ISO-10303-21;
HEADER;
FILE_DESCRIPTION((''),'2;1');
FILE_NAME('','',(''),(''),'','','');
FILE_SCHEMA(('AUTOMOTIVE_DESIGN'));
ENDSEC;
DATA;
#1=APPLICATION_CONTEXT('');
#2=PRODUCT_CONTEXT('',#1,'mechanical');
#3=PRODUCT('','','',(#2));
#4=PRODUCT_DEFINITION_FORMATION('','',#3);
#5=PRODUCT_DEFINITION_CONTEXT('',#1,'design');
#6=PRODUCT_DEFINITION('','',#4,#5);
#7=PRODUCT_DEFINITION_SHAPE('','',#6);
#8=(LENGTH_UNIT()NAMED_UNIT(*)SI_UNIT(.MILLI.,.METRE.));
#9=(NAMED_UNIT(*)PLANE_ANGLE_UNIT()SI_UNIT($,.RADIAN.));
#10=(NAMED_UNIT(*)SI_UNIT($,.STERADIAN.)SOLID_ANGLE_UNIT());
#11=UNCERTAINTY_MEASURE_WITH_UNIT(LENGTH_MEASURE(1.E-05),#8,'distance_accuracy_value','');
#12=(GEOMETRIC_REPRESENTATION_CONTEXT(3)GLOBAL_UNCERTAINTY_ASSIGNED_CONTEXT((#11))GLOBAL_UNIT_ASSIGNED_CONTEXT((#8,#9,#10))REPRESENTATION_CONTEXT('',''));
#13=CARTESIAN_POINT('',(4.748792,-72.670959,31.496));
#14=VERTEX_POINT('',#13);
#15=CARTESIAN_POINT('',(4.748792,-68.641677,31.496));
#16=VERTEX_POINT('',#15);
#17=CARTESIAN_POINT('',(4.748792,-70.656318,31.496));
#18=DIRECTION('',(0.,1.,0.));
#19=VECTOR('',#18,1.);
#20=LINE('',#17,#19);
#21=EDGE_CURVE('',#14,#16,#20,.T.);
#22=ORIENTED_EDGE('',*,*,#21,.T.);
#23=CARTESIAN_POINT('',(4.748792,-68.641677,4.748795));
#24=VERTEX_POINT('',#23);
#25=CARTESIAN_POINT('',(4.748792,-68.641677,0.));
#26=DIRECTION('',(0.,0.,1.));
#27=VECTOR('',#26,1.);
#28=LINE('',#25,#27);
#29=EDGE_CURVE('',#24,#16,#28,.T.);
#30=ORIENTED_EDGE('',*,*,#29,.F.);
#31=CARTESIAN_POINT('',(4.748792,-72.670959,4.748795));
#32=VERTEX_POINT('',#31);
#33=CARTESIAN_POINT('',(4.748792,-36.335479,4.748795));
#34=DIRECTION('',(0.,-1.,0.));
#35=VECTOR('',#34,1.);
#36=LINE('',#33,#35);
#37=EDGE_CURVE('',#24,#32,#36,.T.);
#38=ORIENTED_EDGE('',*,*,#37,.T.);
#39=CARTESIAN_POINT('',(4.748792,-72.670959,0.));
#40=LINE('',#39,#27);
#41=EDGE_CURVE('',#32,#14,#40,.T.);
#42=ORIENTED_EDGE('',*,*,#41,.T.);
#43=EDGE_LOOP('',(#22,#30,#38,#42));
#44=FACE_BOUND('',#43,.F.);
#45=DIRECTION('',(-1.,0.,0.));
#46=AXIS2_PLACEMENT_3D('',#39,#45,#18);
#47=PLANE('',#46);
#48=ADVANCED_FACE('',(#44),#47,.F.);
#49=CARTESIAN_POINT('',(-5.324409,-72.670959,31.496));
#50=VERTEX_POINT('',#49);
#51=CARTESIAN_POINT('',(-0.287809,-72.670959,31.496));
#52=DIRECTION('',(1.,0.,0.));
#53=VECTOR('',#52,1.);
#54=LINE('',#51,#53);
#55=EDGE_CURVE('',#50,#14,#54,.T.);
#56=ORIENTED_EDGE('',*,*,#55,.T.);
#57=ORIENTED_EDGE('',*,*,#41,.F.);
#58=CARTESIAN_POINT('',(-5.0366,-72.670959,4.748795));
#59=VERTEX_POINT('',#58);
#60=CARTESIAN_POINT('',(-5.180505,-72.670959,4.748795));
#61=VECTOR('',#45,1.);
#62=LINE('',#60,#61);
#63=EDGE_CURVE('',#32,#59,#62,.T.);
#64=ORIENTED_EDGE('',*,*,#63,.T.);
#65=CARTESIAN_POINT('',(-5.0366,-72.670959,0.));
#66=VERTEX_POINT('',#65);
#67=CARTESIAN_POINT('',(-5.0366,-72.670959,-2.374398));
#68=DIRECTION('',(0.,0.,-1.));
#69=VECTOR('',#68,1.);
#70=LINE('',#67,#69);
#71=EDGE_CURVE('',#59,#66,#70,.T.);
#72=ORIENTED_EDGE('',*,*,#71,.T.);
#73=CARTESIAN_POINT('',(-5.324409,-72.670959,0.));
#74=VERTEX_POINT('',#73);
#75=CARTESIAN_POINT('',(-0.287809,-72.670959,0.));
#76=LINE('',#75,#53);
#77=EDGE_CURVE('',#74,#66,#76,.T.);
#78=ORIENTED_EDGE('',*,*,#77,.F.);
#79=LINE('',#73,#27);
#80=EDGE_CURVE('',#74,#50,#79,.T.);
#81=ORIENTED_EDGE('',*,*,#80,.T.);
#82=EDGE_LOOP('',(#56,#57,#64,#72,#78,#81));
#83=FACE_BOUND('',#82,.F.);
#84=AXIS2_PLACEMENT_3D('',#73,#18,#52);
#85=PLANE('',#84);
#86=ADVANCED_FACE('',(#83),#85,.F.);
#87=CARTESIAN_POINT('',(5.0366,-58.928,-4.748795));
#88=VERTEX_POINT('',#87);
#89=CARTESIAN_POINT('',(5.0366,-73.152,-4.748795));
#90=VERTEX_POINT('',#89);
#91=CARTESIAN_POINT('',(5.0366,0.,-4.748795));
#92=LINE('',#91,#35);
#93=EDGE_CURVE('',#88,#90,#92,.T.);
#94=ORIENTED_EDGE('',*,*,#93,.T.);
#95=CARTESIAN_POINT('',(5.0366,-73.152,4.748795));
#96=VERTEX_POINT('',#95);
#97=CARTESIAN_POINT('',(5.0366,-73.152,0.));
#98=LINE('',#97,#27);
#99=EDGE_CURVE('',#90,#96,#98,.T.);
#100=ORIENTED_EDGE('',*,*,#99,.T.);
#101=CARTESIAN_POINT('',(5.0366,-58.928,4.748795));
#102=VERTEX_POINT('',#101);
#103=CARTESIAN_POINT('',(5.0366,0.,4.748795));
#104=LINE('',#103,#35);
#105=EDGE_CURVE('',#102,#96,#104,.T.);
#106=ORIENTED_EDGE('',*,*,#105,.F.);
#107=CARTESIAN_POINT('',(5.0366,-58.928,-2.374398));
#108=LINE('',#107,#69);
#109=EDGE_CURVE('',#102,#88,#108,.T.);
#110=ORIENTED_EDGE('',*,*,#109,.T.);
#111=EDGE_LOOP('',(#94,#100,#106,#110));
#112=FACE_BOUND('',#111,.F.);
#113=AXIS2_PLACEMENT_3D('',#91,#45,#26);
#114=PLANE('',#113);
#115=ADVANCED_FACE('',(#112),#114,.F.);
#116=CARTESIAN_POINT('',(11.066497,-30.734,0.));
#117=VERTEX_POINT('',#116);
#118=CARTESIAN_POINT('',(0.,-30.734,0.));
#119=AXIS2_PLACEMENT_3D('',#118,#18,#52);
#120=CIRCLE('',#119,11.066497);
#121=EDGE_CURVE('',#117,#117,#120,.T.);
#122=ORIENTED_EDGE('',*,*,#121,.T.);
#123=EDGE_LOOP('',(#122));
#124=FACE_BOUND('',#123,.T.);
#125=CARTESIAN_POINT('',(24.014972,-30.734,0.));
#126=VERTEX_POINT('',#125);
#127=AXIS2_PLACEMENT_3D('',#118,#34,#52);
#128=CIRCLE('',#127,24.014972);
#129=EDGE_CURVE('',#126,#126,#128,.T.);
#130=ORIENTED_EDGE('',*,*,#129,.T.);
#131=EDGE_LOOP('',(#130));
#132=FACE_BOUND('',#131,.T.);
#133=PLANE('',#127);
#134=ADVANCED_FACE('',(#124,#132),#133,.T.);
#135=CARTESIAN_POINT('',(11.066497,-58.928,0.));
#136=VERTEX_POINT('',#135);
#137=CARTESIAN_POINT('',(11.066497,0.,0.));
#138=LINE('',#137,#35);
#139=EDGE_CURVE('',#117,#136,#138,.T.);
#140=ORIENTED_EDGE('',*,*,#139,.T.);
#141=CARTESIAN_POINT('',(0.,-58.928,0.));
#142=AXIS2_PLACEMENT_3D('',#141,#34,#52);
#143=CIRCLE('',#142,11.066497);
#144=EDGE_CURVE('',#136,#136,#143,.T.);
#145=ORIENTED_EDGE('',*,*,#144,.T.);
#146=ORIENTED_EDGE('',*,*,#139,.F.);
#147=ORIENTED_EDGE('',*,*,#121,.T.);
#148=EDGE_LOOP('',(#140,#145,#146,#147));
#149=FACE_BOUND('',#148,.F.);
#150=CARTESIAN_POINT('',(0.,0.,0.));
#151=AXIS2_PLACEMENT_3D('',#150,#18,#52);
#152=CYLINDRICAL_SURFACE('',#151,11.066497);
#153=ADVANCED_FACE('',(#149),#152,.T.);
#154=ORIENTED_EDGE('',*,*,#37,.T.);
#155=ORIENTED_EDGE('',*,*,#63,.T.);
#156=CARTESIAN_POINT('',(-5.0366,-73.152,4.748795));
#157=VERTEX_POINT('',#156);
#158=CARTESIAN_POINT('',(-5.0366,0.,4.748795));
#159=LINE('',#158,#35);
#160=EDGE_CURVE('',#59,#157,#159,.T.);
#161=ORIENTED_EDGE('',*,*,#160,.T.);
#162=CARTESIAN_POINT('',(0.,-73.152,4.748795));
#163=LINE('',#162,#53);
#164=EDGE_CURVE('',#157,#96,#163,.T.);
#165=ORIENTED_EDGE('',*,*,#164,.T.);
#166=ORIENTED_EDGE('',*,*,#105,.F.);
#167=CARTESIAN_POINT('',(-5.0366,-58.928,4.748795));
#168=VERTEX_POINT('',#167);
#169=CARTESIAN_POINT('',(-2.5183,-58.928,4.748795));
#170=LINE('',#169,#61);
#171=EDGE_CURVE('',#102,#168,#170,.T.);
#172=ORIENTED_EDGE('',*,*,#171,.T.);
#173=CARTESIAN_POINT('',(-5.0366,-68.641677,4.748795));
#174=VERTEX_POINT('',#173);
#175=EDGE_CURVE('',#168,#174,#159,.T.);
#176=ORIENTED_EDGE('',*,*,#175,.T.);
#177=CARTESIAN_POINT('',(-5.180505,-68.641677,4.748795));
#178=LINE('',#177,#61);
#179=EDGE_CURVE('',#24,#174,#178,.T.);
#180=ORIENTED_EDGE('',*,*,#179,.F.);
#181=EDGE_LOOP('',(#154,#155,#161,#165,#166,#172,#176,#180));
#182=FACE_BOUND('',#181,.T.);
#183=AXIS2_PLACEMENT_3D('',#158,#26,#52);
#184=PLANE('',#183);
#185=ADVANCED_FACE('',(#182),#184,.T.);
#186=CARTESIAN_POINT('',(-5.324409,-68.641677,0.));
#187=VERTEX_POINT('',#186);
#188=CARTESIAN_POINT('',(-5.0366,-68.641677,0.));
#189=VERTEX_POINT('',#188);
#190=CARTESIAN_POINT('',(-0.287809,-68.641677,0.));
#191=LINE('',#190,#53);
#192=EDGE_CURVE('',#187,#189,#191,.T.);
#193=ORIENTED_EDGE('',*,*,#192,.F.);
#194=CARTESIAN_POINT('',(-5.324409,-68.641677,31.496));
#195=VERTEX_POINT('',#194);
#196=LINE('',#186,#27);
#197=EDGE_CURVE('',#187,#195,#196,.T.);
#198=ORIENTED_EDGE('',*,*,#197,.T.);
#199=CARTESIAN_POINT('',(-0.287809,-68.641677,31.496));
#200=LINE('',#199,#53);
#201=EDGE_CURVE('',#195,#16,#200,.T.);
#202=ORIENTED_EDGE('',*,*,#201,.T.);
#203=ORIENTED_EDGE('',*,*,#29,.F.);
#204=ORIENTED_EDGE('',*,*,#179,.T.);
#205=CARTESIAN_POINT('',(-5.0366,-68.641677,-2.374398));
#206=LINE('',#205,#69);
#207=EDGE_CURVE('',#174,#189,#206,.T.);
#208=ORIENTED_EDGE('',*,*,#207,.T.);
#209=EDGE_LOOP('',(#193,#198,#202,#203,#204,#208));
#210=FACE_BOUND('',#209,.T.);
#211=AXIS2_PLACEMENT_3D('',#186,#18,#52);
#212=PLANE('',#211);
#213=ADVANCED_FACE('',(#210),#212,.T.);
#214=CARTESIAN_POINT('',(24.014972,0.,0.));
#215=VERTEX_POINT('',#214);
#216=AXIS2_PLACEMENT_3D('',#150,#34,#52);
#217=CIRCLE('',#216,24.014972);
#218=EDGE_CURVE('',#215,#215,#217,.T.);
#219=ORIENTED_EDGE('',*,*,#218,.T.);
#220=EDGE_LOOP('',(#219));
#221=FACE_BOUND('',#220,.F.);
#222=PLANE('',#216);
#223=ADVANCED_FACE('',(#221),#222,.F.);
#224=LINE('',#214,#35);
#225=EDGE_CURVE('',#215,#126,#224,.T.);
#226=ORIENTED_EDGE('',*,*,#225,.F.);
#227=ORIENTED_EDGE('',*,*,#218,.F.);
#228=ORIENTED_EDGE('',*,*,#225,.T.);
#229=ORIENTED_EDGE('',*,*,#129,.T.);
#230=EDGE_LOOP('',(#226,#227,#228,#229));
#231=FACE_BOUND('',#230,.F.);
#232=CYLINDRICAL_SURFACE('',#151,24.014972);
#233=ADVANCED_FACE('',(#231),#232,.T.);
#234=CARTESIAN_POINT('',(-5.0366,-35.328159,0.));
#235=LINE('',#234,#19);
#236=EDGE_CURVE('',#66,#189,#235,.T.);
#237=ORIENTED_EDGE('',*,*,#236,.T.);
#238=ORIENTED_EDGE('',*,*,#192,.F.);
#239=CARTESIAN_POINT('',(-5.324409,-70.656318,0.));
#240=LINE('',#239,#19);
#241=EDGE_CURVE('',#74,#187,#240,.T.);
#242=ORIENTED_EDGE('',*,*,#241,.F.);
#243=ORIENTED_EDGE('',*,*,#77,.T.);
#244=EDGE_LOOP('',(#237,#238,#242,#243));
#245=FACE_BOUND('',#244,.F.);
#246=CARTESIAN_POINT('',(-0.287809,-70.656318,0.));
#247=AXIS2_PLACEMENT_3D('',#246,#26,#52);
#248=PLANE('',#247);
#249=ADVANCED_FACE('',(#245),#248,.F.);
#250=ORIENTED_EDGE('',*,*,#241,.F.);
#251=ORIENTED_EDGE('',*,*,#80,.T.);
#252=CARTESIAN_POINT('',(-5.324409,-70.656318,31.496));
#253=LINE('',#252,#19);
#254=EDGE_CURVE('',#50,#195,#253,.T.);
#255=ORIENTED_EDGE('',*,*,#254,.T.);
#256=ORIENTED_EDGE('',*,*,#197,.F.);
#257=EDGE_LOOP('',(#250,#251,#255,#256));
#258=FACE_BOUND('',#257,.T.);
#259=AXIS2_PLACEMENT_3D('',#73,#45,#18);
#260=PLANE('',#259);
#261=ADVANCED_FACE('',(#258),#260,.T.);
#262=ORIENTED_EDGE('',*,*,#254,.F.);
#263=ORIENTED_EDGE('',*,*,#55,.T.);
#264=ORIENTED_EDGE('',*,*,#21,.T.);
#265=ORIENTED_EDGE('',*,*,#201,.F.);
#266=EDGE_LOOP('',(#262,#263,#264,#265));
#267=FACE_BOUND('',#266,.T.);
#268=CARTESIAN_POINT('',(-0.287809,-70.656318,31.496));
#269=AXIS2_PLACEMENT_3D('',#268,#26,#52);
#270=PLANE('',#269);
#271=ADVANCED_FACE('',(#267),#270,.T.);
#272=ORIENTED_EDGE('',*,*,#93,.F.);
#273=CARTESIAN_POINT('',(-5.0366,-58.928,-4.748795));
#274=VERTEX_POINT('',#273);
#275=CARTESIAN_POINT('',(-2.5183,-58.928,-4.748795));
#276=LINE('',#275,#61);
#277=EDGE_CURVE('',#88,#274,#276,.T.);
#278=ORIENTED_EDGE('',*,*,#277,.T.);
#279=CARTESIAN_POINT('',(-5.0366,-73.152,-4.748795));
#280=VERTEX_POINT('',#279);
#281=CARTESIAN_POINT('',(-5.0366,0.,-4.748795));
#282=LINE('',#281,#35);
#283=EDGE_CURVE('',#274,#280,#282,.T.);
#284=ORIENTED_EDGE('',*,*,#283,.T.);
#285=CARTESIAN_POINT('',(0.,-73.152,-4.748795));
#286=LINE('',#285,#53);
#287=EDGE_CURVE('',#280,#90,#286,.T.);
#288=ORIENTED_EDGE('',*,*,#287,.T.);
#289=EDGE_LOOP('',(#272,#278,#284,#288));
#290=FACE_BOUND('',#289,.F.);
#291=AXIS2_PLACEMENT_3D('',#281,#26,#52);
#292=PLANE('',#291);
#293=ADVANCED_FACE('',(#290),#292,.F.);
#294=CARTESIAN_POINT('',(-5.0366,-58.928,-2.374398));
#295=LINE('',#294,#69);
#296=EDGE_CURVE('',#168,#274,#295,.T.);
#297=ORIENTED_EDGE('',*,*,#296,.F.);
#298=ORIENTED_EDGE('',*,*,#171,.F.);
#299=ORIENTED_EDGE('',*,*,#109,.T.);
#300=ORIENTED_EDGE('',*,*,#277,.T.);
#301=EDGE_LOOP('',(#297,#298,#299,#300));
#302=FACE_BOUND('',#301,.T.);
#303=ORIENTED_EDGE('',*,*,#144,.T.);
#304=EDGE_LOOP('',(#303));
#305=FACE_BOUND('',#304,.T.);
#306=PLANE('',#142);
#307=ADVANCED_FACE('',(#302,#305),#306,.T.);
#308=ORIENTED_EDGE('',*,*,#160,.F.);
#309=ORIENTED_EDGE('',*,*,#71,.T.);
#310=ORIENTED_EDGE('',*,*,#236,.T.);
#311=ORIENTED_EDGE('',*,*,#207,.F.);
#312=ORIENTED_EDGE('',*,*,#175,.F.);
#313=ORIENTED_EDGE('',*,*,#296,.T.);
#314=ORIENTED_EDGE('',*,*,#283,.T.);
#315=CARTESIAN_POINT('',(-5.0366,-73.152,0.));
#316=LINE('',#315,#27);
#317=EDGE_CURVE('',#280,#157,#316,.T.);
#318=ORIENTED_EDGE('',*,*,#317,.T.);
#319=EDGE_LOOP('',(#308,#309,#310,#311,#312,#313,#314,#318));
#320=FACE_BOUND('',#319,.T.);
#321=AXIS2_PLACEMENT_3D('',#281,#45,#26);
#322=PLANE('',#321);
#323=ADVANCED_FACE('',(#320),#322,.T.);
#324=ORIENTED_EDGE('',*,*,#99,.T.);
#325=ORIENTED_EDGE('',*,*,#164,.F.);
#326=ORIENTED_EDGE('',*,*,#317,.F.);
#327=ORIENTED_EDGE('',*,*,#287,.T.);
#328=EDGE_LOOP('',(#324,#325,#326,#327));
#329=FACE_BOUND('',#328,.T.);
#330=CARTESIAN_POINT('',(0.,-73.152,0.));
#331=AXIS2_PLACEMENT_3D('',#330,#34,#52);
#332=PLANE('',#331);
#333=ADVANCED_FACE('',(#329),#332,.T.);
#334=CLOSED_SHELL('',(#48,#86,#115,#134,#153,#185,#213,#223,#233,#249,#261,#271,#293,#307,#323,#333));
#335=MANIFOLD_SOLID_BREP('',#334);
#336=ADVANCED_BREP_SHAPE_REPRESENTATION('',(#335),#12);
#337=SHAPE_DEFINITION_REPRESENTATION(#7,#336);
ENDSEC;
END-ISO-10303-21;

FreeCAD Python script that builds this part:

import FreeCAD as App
import Part
import Sketcher

V = App.Vector

doc = App.newDocument("Part")
params = doc.addObject("Spreadsheet::Sheet", "Params")
for row, (alias, value) in enumerate([
    ("pad1_length", "1.21 in"),
    ("pad2_length", "2.32 in"),
    ("pad3_length", "2.88 in"),
    ("pad4_length", "1.24 in"),
], start=1):
    params.set(f"A{row}", alias)
    params.set(f"B{row}", "=" + value)
    params.setAlias(f"B{row}", alias)

body = doc.addObject("PartDesign::Body", "Body")

sketch1 = body.newObject("Sketcher::SketchObject", "Sketch")
sketch1.AttachmentSupport = (doc.getObject("XZ_Plane"), [""])
sketch1.MapMode = "FlatFace"
sketch1.addGeometry(Part.Circle(V(0, 0, 0), V(0, 0, 1), 24), False)
sketch1.addConstraint([
    Sketcher.Constraint("Coincident", 0, 3, -1, 1),
    Sketcher.Constraint("Diameter", 0, 48.029944),
])
pad1 = body.newObject("PartDesign::Pad", "Pad")
pad1.Profile = sketch1
pad1.setExpression("Length", "Params.pad1_length")

sketch2 = body.newObject("Sketcher::SketchObject", "Sketch001")
sketch2.AttachmentSupport = (doc.getObject("XZ_Plane"), [""])
sketch2.MapMode = "FlatFace"
sketch2.addGeometry(Part.Circle(V(0, 0, 0), V(0, 0, 1), 11), False)
sketch2.addConstraint([
    Sketcher.Constraint("Coincident", 0, 3, -1, 1),
    Sketcher.Constraint("Diameter", 0, 22.132994),
])
pad2 = body.newObject("PartDesign::Pad", "Pad001")
pad2.Profile = sketch2
pad2.setExpression("Length", "Params.pad2_length")

sketch3 = body.newObject("Sketcher::SketchObject", "Sketch002")
sketch3.AttachmentSupport = (doc.getObject("XZ_Plane"), [""])
sketch3.MapMode = "FlatFace"
sketch3.addGeometry([
    Part.LineSegment(V(-5, 5, 0), V(-5, -5, 0)),
    Part.LineSegment(V(-5, -5, 0), V(5, -5, 0)),
    Part.LineSegment(V(5, -5, 0), V(5, 5, 0)),
    Part.LineSegment(V(5, 5, 0), V(-5, 5, 0)),
], False)
sketch3.addConstraint([
    Sketcher.Constraint("Coincident", 0, 2, 1, 1),
    Sketcher.Constraint("Coincident", 1, 2, 2, 1),
    Sketcher.Constraint("Coincident", 2, 2, 3, 1),
    Sketcher.Constraint("Coincident", 3, 2, 0, 1),
    Sketcher.Constraint("Vertical", 0),
    Sketcher.Constraint("Horizontal", 1),
    Sketcher.Constraint("Vertical", 2),
    Sketcher.Constraint("Horizontal", 3),
    Sketcher.Constraint("Symmetric", 0, 2, 2, 2, -1, 1),
    Sketcher.Constraint("DistanceX", 1, 1, 1, 2, 10.073201),
    Sketcher.Constraint("DistanceY", 0, 2, 0, 1, 9.49759),
])
pad3 = body.newObject("PartDesign::Pad", "Pad002")
pad3.Profile = sketch3
pad3.setExpression("Length", "Params.pad3_length")

sketch4 = body.newObject("Sketcher::SketchObject", "Sketch003")
sketch4.AttachmentSupport = (doc.getObject("XY_Plane"), [""])
sketch4.MapMode = "FlatFace"
sketch4.addGeometry([
    Part.LineSegment(V(-5.3, -68.6, 0), V(-5.3, -72.7, 0)),
    Part.LineSegment(V(-5.3, -72.7, 0), V(4.7, -72.7, 0)),
    Part.LineSegment(V(4.7, -72.7, 0), V(4.7, -68.6, 0)),
    Part.LineSegment(V(4.7, -68.6, 0), V(-5.3, -68.6, 0)),
], False)
sketch4.addConstraint([
    Sketcher.Constraint("Coincident", 0, 2, 1, 1),
    Sketcher.Constraint("Coincident", 1, 2, 2, 1),
    Sketcher.Constraint("Coincident", 2, 2, 3, 1),
    Sketcher.Constraint("Coincident", 3, 2, 0, 1),
    Sketcher.Constraint("Vertical", 0),
    Sketcher.Constraint("Horizontal", 1),
    Sketcher.Constraint("Vertical", 2),
    Sketcher.Constraint("Horizontal", 3),
    Sketcher.Constraint("DistanceX", 1, 1, 1, 2, 10.073201),
    Sketcher.Constraint("DistanceY", 0, 2, 0, 1, 4.029282),
    Sketcher.Constraint("DistanceX", 0, 2, -1, 1, 5.324409),
    Sketcher.Constraint("DistanceY", 0, 2, -1, 1, 72.670959),
])
pad4 = body.newObject("PartDesign::Pad", "Pad003")
pad4.Profile = sketch4
pad4.setExpression("Length", "Params.pad4_length")

doc.recompute()
